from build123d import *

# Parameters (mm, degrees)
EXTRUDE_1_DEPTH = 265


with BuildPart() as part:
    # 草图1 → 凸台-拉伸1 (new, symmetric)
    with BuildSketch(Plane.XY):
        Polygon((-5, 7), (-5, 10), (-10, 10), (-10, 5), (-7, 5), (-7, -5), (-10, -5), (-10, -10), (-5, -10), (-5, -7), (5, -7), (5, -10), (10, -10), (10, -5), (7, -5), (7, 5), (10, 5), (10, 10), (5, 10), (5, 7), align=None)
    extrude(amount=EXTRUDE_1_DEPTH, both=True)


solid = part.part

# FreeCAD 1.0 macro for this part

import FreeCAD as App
import Part
import Sketcher
from FreeCAD import Vector


def add_polygon(sketch, points):
    """Adds a closed chain of lines whose ends are joined by coincident constraints."""
    first, n = sketch.GeometryCount, len(points)
    for a, b in zip(points, points[1:] + points[:1]):
        sketch.addGeometry(Part.LineSegment(App.Vector(*a, 0), App.Vector(*b, 0)), False)
    for i in range(n):
        sketch.addConstraint(Sketcher.Constraint("Coincident", first + i, 2, first + (i + 1) % n, 1))

doc = App.newDocument("Part")
body = doc.addObject("PartDesign::Body", "Body")

sketch1 = body.newObject("Sketcher::SketchObject", "Sketch")
sketch1.AttachmentSupport = (doc.getObject("XY_Plane"), [""])
sketch1.MapMode = "FlatFace"
add_polygon(sketch1, [(-5, 7), (-5, 10), (-10, 10), (-10, 5), (-7, 5), (-7, -5), (-10, -5), (-10, -10), (-5, -10), (-5, -7), (5, -7), (5, -10), (10, -10), (10, -5), (7, -5), (7, 5), (10, 5), (10, 10), (5, 10), (5, 7)])
sketch1.addConstraint([
    Sketcher.Constraint("Vertical", 0),
    Sketcher.Constraint("Horizontal", 1),
    Sketcher.Constraint("Vertical", 2),
    Sketcher.Constraint("Horizontal", 3),
    Sketcher.Constraint("Vertical", 4),
    Sketcher.Constraint("Horizontal", 5),
    Sketcher.Constraint("Vertical", 6),
    Sketcher.Constraint("Horizontal", 7),
    Sketcher.Constraint("Vertical", 8),
    Sketcher.Constraint("Horizontal", 9),
    Sketcher.Constraint("Vertical", 10),
    Sketcher.Constraint("Horizontal", 11),
    Sketcher.Constraint("Vertical", 12),
    Sketcher.Constraint("Horizontal", 13),
    Sketcher.Constraint("Vertical", 14),
    Sketcher.Constraint("Horizontal", 15),
    Sketcher.Constraint("Vertical", 16),
    Sketcher.Constraint("Horizontal", 17),
    Sketcher.Constraint("Vertical", 18),
    Sketcher.Constraint("Horizontal", 19),
    Sketcher.Constraint("Symmetric", 0, 2, 10, 2, -1, 1),
    Sketcher.Constraint("Symmetric", 2, 2, 12, 2, -1, 1),
    Sketcher.Constraint("Symmetric", 4, 2, 14, 2, -1, 1),
    Sketcher.Constraint("Symmetric", 6, 2, 16, 2, -1, 1),
    Sketcher.Constraint("Symmetric", 8, 2, 18, 2, -1, 1),
    Sketcher.Constraint("Symmetric", 7, 2, 10, 2, -2),
    Sketcher.Constraint("Symmetric", 5, 2, 12, 2, -2),
    Sketcher.Constraint("Equal", 15, 0),
    Sketcher.Constraint("Equal", 17, 2),
    Sketcher.Constraint("Equal", 19, 4),
    Sketcher.Constraint("DistanceX", 1, 2, 1, 1, 5.0),
    Sketcher.Constraint("DistanceX", 3, 1, 3, 2, 3.0),
    Sketcher.Constraint("DistanceX", 9, 1, 9, 2, 10.0),
])
pad1 = body.newObject("PartDesign::Pad", "Pad")
pad1.Profile = sketch1
pad1.Length = 530
pad1.Midplane = True

doc.recompute()
